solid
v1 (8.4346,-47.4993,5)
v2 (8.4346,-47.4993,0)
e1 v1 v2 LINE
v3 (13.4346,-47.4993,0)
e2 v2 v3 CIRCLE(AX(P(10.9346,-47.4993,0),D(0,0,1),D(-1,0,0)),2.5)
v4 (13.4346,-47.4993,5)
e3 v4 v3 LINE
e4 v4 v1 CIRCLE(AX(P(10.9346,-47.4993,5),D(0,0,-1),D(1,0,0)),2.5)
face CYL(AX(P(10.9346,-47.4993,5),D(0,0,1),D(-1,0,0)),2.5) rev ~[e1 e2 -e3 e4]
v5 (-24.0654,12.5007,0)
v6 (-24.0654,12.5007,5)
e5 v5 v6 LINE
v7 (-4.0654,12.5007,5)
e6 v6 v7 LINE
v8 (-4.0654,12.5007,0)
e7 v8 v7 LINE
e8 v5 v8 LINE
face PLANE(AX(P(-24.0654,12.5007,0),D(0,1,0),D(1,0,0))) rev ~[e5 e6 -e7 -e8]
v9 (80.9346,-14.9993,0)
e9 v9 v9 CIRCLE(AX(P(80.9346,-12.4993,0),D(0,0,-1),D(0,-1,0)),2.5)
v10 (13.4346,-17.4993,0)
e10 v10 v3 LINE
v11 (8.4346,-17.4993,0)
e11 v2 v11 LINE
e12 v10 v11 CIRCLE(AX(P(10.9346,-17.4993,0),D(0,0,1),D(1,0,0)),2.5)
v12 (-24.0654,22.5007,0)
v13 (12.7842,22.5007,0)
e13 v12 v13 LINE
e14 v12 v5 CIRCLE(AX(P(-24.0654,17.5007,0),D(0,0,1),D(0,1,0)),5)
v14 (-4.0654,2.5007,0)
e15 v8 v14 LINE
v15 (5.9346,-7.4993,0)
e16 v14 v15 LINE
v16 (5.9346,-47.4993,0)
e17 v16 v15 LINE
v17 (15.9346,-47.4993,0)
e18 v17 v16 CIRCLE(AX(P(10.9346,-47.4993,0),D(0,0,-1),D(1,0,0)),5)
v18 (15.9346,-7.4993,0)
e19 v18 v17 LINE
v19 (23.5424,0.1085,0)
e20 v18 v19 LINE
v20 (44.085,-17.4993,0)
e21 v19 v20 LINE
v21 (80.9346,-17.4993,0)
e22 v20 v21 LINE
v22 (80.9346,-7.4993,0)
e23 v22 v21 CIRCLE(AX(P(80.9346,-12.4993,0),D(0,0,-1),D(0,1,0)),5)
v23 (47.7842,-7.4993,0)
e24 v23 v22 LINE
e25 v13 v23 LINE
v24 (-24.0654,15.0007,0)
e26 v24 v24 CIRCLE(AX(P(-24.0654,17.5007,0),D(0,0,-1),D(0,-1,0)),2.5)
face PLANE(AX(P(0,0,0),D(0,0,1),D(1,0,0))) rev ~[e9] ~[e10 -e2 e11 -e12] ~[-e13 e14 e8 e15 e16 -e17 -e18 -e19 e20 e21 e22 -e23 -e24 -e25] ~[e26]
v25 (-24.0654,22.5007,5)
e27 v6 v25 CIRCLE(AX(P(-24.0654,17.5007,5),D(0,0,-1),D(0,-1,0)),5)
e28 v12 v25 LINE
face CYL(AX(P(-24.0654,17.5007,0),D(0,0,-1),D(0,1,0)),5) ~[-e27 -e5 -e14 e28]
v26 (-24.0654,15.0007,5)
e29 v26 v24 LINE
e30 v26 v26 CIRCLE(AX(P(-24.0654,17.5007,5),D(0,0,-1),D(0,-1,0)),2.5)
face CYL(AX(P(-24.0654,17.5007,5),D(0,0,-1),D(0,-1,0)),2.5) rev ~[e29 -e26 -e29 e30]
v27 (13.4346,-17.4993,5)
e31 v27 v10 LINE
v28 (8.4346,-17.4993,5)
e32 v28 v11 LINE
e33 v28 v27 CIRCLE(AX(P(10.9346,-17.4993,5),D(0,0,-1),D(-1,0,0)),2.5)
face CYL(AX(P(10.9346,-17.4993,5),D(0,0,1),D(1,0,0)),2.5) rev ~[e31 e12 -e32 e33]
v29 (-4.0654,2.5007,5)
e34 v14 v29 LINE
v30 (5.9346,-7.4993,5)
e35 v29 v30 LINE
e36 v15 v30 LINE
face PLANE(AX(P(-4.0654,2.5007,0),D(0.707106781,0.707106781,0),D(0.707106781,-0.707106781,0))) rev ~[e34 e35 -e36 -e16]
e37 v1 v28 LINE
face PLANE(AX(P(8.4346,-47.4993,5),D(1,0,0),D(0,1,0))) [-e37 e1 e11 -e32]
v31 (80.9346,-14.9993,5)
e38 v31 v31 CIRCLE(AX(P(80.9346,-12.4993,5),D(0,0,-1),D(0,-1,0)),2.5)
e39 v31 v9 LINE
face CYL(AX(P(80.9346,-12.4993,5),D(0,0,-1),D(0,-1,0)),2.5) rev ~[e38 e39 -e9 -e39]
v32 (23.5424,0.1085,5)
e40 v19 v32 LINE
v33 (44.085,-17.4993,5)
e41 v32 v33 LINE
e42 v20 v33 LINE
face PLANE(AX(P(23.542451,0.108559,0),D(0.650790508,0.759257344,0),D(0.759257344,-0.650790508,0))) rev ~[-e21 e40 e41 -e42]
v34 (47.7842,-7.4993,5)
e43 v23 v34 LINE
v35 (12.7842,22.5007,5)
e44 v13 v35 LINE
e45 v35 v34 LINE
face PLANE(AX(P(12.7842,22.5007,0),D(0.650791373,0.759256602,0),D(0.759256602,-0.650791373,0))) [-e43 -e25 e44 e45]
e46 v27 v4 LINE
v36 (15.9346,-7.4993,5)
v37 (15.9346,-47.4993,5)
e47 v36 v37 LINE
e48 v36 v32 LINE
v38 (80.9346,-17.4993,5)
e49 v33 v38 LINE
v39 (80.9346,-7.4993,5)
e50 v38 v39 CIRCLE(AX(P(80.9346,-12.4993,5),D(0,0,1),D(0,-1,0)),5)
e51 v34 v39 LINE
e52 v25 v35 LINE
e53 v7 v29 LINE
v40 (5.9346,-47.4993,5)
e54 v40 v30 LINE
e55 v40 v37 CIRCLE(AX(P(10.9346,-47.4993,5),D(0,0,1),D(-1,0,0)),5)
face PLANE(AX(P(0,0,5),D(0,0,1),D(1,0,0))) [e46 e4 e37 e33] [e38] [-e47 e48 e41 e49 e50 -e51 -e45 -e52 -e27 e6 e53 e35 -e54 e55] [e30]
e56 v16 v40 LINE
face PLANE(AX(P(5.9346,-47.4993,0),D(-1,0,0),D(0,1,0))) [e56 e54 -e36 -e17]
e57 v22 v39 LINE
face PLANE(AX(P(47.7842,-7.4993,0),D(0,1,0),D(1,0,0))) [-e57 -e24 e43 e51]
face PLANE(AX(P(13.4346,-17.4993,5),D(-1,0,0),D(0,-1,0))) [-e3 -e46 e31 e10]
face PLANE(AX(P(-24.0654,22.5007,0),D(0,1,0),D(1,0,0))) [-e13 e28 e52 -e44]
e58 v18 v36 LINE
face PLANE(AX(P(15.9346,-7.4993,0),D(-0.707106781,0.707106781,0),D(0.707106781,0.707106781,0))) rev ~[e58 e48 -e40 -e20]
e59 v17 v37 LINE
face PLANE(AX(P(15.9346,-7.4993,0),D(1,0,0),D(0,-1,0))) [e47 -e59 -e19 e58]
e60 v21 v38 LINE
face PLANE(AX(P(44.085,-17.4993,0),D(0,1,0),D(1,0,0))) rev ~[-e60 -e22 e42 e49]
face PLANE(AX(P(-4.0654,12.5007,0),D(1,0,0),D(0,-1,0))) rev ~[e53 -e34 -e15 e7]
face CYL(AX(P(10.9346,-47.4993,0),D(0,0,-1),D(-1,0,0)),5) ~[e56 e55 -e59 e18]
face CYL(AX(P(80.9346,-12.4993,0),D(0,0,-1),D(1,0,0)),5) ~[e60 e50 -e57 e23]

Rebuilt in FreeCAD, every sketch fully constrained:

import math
import FreeCAD as App
import Part
import Sketcher

V = App.Vector

doc = App.newDocument("Part")
body = doc.addObject("PartDesign::Body", "Body")

# Sketch on XY plane
sketch1 = body.newObject("Sketcher::SketchObject", "Sketch")
sketch1.AttachmentSupport = (doc.getObject("XY_Plane"), [""])
sketch1.MapMode = "FlatFace"
sketch1.addGeometry(Part.LineSegment(V(12.7842, 22.5007, 0), V(-24.0654, 22.5007, 0)), False)
sketch1.addGeometry(Part.ArcOfCircle(Part.Circle(V(-24.0654, 17.5007, 0), V(0, 0, 1), 5), math.radians(90), math.radians(270)), False)
sketch1.addGeometry(Part.LineSegment(V(-24.0654, 12.5007, 0), V(-4.0654, 12.5007, 0)), False)
sketch1.addGeometry(Part.LineSegment(V(-4.0654, 12.5007, 0), V(-4.0654, 2.5007, 0)), False)
sketch1.addGeometry(Part.LineSegment(V(-4.0654, 2.5007, 0), V(5.9346, -7.4993, 0)), False)
sketch1.addGeometry(Part.LineSegment(V(5.9346, -7.4993, 0), V(5.9346, -47.4993, 0)), False)
sketch1.addGeometry(Part.ArcOfCircle(Part.Circle(V(10.9346, -47.4993, 0), V(0, 0, 1), 5), math.radians(180), math.radians(360)), False)
sketch1.addGeometry(Part.LineSegment(V(15.9346, -47.4993, 0), V(15.9346, -7.4993, 0)), False)
sketch1.addGeometry(Part.LineSegment(V(15.9346, -7.4993, 0), V(23.5424, 0.1085, 0)), False)
sketch1.addGeometry(Part.LineSegment(V(23.542451, 0.108559, 0), V(44.085, -17.4993, 0)), False)
sketch1.addGeometry(Part.LineSegment(V(44.085, -17.4993, 0), V(80.9346, -17.4993, 0)), False)
sketch1.addGeometry(Part.ArcOfCircle(Part.Circle(V(80.9346, -12.4993, 0), V(0, 0, 1), 5), math.radians(-90), math.radians(90)), False)
sketch1.addGeometry(Part.LineSegment(V(80.9346, -7.4993, 0), V(47.7842, -7.4993, 0)), False)
sketch1.addGeometry(Part.LineSegment(V(47.7842, -7.4993, 0), V(12.7842, 22.5007, 0)), False)
sketch1.addConstraint(Sketcher.Constraint("Tangent", 0, 2, 1, 1))
sketch1.addConstraint(Sketcher.Constraint("Tangent", 1, 2, 2, 1))
sketch1.addConstraint(Sketcher.Constraint("Coincident", 2, 2, 3, 1))
sketch1.addConstraint(Sketcher.Constraint("Coincident", 3, 2, 4, 1))
sketch1.addConstraint(Sketcher.Constraint("Coincident", 4, 2, 5, 1))
sketch1.addConstraint(Sketcher.Constraint("Tangent", 5, 2, 6, 1))
sketch1.addConstraint(Sketcher.Constraint("Tangent", 6, 2, 7, 1))
sketch1.addConstraint(Sketcher.Constraint("Coincident", 7, 2, 8, 1))
sketch1.addConstraint(Sketcher.Constraint("Coincident", 8, 2, 9, 1))
sketch1.addConstraint(Sketcher.Constraint("Coincident", 9, 2, 10, 1))
sketch1.addConstraint(Sketcher.Constraint("Tangent", 10, 2, 11, 1))
sketch1.addConstraint(Sketcher.Constraint("Tangent", 11, 2, 12, 1))
sketch1.addConstraint(Sketcher.Constraint("Coincident", 12, 2, 13, 1))
sketch1.addConstraint(Sketcher.Constraint("Coincident", 13, 2, 0, 1))
sketch1.addConstraint(Sketcher.Constraint("Horizontal", 0))
sketch1.addConstraint(Sketcher.Constraint("Horizontal", 2))
sketch1.addConstraint(Sketcher.Constraint("Vertical", 3))
sketch1.addConstraint(Sketcher.Constraint("Vertical", 5))
sketch1.addConstraint(Sketcher.Constraint("Vertical", 7))
sketch1.addConstraint(Sketcher.Constraint("Horizontal", 10))
sketch1.addConstraint(Sketcher.Constraint("Horizontal", 12))
sketch1.addConstraint(Sketcher.Constraint("Equal", 1, 6))
sketch1.addConstraint(Sketcher.Constraint("Equal", 6, 11))
sketch1.addConstraint(Sketcher.Constraint("Perpendicular", 4, 8))
sketch1.addConstraint(Sketcher.Constraint("Parallel", 9, 13))
sketch1.addConstraint(Sketcher.Constraint("Horizontal", 4, 2, 7, 2))
sketch1.addConstraint(Sketcher.Constraint("Horizontal", 7, 2, 11, 2))
sketch1.addConstraint(Sketcher.Constraint("Equal", 0, 10))
sketch1.addConstraint(Sketcher.Constraint("Radius", 1, 5.0))
sketch1.addConstraint(Sketcher.Constraint("DistanceX", 2, 1, 2, 2, 20.0))
sketch1.addConstraint(Sketcher.Constraint("DistanceY", 3, 2, 3, 1, 10.0))
sketch1.addConstraint(Sketcher.Constraint("DistanceX", 1, 3, 6, 3, 35.0))
sketch1.addConstraint(Sketcher.Constraint("DistanceY", 6, 3, 1, 3, 65.0))
sketch1.addConstraint(Sketcher.Constraint("DistanceY", 6, 3, 11, 3, 35.0))
sketch1.addConstraint(Sketcher.Constraint("DistanceX", 7, 2, 10, 2, 65.0))
sketch1.addConstraint(Sketcher.Constraint("Distance", 8, 10.759))
sketch1.addConstraint(Sketcher.Constraint("Distance", 9, 27.056))
sketch1.addConstraint(Sketcher.Constraint("DistanceX", -1, 1, 9, 2, 44.085))
sketch1.addConstraint(Sketcher.Constraint("DistanceY", -1, 1, 1, 3, 17.5007))
pad1 = body.newObject("PartDesign::Pad", "Pad")
pad1.Profile = sketch1
pad1.Length = 5

# Sketch on XY plane
sketch2 = body.newObject("Sketcher::SketchObject", "Sketch001")
sketch2.AttachmentSupport = (doc.getObject("XY_Plane"), [""])
sketch2.MapMode = "FlatFace"
sketch2.AttachmentOffset = App.Placement(V(0, 0, 5), App.Rotation())
sketch2.addGeometry(Part.Circle(V(-24.0654, 17.5007, 0), V(0, 0, 1), 2.5), False)
sketch2.addGeometry(Part.Circle(V(80.9346, -12.4993, 0), V(0, 0, 1), 2.5), False)
sketch2.addConstraint(Sketcher.Constraint("Equal", 0, 1))
sketch2.addConstraint(Sketcher.Constraint("Diameter", 0, 5.0))
sketch2.addConstraint(Sketcher.Constraint("DistanceX", 0, 3, 1, 3, 105.0))
sketch2.addConstraint(Sketcher.Constraint("DistanceY", 1, 3, 0, 3, 30.0))
sketch2.addConstraint(Sketcher.Constraint("DistanceX", 0, 3, -1, 1, 24.0654))
sketch2.addConstraint(Sketcher.Constraint("DistanceY", -1, 1, 0, 3, 17.5007))
doc.recompute()
hole = body.newObject("PartDesign::Hole", "Hole")
hole.Profile = sketch2
hole.ThreadType = "None"
hole.Diameter = 5
hole.DepthType = "ThroughAll"

# Sketch on XY plane
sketch3 = body.newObject("Sketcher::SketchObject", "Sketch002")
sketch3.AttachmentSupport = (doc.getObject("XY_Plane"), [""])
sketch3.MapMode = "FlatFace"
sketch3.AttachmentOffset = App.Placement(V(0, 0, 5), App.Rotation())
sketch3.addGeometry(Part.LineSegment(V(13.4346, -47.4993, 0), V(13.4346, -17.4993, 0)), False)
sketch3.addGeometry(Part.ArcOfCircle(Part.Circle(V(10.9346, -17.4993, 0), V(0, 0, 1), 2.5), math.radians(0), math.radians(180)), False)
sketch3.addGeometry(Part.LineSegment(V(8.4346, -17.4993, 0), V(8.4346, -47.4993, 0)), False)
sketch3.addGeometry(Part.ArcOfCircle(Part.Circle(V(10.9346, -47.4993, 0), V(0, 0, 1), 2.5), math.radians(180), math.radians(360)), False)
sketch3.addConstraint(Sketcher.Constraint("Tangent", 0, 2, 1, 1))
sketch3.addConstraint(Sketcher.Constraint("Tangent", 1, 2, 2, 1))
sketch3.addConstraint(Sketcher.Constraint("Tangent", 2, 2, 3, 1))
sketch3.addConstraint(Sketcher.Constraint("Tangent", 3, 2, 0, 1))
sketch3.addConstraint(Sketcher.Constraint("Vertical", 0))
sketch3.addConstraint(Sketcher.Constraint("Vertical", 2))
sketch3.addConstraint(Sketcher.Constraint("Radius", 1, 2.5))
sketch3.addConstraint(Sketcher.Constraint("DistanceY", 0, 1, 0, 2, 30.0))
sketch3.addConstraint(Sketcher.Constraint("DistanceX", -1, 1, 1, 3, 10.9346))
sketch3.addConstraint(Sketcher.Constraint("DistanceY", 1, 3, -1, 1, 17.4993))
pocket1 = body.newObject("PartDesign::Pocket", "Pocket")
pocket1.Profile = sketch3
pocket1.Length = 5

doc.recompute()
